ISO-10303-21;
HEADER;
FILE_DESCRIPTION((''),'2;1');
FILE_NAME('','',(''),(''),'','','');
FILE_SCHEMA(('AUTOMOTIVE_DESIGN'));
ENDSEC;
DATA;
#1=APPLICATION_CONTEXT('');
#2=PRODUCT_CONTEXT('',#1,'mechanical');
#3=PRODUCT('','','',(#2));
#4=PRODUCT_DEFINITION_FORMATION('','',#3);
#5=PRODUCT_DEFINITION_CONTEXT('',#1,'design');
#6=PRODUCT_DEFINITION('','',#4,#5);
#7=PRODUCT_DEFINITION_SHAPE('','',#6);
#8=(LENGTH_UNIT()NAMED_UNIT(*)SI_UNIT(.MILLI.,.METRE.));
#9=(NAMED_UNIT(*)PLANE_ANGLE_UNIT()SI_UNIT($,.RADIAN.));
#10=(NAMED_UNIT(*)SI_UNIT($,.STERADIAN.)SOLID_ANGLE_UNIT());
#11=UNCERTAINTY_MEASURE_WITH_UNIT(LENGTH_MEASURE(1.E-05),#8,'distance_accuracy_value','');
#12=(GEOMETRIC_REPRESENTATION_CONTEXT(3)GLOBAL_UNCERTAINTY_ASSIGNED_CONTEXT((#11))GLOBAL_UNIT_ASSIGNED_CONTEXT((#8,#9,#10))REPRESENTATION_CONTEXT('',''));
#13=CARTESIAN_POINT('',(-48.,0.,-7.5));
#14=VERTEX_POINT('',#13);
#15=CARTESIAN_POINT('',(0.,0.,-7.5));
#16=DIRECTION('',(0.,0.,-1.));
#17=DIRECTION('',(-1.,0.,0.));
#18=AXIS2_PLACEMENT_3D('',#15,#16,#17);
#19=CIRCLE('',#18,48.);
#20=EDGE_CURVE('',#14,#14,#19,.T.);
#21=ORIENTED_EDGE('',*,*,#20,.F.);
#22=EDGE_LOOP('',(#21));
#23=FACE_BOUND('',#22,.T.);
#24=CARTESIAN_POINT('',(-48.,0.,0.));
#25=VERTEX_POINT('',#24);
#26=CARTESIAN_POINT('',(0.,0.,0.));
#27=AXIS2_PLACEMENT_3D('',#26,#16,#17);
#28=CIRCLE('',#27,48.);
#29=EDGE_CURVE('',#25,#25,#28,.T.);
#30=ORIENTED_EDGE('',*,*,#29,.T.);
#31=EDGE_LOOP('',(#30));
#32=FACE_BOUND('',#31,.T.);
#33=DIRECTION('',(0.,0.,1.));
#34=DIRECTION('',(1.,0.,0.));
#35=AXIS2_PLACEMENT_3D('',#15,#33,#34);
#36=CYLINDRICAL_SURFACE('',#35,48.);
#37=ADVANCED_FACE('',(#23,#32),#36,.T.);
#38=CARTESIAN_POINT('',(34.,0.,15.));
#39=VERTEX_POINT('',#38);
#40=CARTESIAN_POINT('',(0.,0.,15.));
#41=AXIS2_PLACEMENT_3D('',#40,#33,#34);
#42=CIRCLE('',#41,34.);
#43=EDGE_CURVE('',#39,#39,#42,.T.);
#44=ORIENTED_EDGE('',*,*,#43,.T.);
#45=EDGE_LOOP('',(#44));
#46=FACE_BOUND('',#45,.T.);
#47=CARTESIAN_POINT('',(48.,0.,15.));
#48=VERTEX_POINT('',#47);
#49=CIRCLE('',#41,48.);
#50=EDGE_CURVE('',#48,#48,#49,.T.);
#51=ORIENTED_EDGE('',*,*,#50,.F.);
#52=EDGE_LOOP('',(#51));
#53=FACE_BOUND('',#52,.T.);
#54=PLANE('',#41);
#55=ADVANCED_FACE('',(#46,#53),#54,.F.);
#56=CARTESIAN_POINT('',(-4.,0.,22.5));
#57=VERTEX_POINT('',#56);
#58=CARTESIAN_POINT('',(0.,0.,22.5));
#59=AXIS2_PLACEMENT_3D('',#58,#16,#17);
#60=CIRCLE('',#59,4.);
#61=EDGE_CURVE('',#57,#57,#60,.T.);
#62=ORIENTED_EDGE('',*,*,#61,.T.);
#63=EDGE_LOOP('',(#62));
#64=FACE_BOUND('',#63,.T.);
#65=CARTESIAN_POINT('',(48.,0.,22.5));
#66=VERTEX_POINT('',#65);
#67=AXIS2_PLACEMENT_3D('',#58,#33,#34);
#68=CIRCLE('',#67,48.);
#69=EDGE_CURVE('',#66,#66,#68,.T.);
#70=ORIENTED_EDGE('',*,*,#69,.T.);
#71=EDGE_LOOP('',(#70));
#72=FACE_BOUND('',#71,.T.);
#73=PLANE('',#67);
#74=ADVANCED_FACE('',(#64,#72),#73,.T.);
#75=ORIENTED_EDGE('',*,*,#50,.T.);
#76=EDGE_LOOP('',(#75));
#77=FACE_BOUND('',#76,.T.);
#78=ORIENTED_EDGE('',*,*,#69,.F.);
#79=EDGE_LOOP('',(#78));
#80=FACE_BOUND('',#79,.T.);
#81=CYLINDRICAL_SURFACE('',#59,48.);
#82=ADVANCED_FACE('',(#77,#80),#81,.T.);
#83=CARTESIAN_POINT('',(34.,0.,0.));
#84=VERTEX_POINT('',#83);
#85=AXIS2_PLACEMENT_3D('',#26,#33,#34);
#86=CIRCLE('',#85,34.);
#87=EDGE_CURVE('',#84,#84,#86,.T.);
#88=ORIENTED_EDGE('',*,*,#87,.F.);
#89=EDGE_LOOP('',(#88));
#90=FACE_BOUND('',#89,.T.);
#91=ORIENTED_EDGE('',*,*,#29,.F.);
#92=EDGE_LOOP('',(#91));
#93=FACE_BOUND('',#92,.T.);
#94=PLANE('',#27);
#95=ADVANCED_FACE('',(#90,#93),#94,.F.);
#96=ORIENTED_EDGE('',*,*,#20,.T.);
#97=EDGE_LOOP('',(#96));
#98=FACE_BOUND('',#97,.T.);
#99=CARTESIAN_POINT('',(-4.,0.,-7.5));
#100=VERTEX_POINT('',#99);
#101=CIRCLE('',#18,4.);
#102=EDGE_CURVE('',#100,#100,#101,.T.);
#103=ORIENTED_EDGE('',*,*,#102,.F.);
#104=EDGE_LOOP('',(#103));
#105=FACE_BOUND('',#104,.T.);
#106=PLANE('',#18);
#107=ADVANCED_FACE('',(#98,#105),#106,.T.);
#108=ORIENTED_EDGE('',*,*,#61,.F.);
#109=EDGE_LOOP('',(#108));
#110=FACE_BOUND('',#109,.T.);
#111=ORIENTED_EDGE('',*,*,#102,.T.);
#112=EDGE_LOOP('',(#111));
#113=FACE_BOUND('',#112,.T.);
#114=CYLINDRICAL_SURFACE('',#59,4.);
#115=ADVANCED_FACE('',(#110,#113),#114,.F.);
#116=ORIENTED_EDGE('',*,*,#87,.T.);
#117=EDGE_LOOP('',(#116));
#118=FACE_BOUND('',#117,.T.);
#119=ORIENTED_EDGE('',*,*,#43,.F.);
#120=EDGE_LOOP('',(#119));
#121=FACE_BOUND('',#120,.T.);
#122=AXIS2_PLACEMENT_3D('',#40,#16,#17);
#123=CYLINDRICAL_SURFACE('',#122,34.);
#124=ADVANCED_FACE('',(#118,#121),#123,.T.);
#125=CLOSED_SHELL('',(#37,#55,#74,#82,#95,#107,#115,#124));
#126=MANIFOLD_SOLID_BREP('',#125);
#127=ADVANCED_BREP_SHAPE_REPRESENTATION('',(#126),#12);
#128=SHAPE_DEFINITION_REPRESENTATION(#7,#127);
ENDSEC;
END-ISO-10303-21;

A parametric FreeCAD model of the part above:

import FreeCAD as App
import Part
import Sketcher

doc = App.newDocument("Part")
body = doc.addObject("PartDesign::Body", "Body")

# Sketch on XY plane
sketch1 = doc.addObject("Sketcher::SketchObject", "Sketch")
body.addObject(sketch1)
sketch1.AttachmentSupport = (doc.XY_Plane, [""])
sketch1.MapMode = "FlatFace"
sketch1.addGeometry(Part.Circle(App.Vector(0, 0, 0), App.Vector(0, 0, 1), 34), False)
sketch1.addConstraint([
    Sketcher.Constraint("Coincident", 0, 3, -1, 1),
    Sketcher.Constraint("Diameter", 0, 68.0),
])
pad1 = doc.addObject("PartDesign::Pad", "Pad")
body.addObject(pad1)
pad1.Profile = sketch1
pad1.Length = 15

# Sketch on XY plane
sketch2 = doc.addObject("Sketcher::SketchObject", "Sketch001")
body.addObject(sketch2)
sketch2.AttachmentSupport = (doc.XY_Plane, [""])
sketch2.MapMode = "FlatFace"
sketch2.AttachmentOffset = App.Placement(App.Vector(0, 0, 15), App.Rotation())
sketch2.addGeometry(Part.Circle(App.Vector(0, 0, 0), App.Vector(0, 0, 1), 48), False)
sketch2.addConstraint([
    Sketcher.Constraint("Coincident", 0, 3, -1, 1),
    Sketcher.Constraint("Diameter", 0, 96.0),
])
pad2 = doc.addObject("PartDesign::Pad", "Pad001")
body.addObject(pad2)
pad2.Profile = sketch2
pad2.Length = 7.5

# Sketch on XY plane
sketch3 = doc.addObject("Sketcher::SketchObject", "Sketch002")
body.addObject(sketch3)
sketch3.AttachmentSupport = (doc.XY_Plane, [""])
sketch3.MapMode = "FlatFace"
sketch3.AttachmentOffset = App.Placement(App.Vector(0, 0, -7.5), App.Rotation())
sketch3.addGeometry(Part.Circle(App.Vector(0, 0, 0), App.Vector(0, 0, 1), 48), False)
sketch3.addConstraint([
    Sketcher.Constraint("Coincident", 0, 3, -1, 1),
    Sketcher.Constraint("Diameter", 0, 96.0),
])
pad3 = doc.addObject("PartDesign::Pad", "Pad002")
body.addObject(pad3)
pad3.Profile = sketch3
pad3.Length = 7.5

# Sketch on XY plane
sketch4 = doc.addObject("Sketcher::SketchObject", "Sketch003")
body.addObject(sketch4)
sketch4.AttachmentSupport = (doc.XY_Plane, [""])
sketch4.MapMode = "FlatFace"
sketch4.AttachmentOffset = App.Placement(App.Vector(0, 0, -7.5), App.Rotation())
sketch4.addGeometry(Part.Circle(App.Vector(0, 0, 0), App.Vector(0, 0, 1), 4), False)
sketch4.addConstraint([
    Sketcher.Constraint("Coincident", 0, 3, -1, 1),
    Sketcher.Constraint("Diameter", 0, 8.0),
])
pocket1 = doc.addObject("PartDesign::Pocket", "Pocket")
body.addObject(pocket1)
pocket1.Profile = sketch4
pocket1.Length = 30
pocket1.Reversed = True

doc.recompute()
